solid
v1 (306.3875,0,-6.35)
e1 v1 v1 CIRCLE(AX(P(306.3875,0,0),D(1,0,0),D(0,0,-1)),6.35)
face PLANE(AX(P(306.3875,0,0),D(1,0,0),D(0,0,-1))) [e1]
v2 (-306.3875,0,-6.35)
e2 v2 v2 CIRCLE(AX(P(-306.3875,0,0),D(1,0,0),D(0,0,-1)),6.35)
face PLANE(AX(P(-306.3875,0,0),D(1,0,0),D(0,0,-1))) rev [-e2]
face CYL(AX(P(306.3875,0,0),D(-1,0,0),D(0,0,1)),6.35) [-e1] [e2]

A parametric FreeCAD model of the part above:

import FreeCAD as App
import Part
import Sketcher

V = App.Vector
Q = App.Units.Quantity

doc = App.newDocument("Part")
body = doc.addObject("PartDesign::Body", "Body")

# Sketch on YZ plane
sketch1 = doc.addObject("Sketcher::SketchObject", "Sketch")
body.addObject(sketch1)
sketch1.AttachmentSupport = (doc.YZ_Plane, [""])
sketch1.MapMode = "FlatFace"
sketch1.addGeometry(Part.Circle(V(0, 0, 0), V(0, 0, 1), 6), False)
sketch1.addConstraint(Sketcher.Constraint("Coincident", 0, 3, -1, 1))
sketch1.addConstraint(Sketcher.Constraint("Diameter", 0, Q("0.5 in")))
pad1 = doc.addObject("PartDesign::Pad", "Pad")
body.addObject(pad1)
pad1.Profile = sketch1
pad1.Length = Q("24.125 in")
pad1.Midplane = True

doc.recompute()
